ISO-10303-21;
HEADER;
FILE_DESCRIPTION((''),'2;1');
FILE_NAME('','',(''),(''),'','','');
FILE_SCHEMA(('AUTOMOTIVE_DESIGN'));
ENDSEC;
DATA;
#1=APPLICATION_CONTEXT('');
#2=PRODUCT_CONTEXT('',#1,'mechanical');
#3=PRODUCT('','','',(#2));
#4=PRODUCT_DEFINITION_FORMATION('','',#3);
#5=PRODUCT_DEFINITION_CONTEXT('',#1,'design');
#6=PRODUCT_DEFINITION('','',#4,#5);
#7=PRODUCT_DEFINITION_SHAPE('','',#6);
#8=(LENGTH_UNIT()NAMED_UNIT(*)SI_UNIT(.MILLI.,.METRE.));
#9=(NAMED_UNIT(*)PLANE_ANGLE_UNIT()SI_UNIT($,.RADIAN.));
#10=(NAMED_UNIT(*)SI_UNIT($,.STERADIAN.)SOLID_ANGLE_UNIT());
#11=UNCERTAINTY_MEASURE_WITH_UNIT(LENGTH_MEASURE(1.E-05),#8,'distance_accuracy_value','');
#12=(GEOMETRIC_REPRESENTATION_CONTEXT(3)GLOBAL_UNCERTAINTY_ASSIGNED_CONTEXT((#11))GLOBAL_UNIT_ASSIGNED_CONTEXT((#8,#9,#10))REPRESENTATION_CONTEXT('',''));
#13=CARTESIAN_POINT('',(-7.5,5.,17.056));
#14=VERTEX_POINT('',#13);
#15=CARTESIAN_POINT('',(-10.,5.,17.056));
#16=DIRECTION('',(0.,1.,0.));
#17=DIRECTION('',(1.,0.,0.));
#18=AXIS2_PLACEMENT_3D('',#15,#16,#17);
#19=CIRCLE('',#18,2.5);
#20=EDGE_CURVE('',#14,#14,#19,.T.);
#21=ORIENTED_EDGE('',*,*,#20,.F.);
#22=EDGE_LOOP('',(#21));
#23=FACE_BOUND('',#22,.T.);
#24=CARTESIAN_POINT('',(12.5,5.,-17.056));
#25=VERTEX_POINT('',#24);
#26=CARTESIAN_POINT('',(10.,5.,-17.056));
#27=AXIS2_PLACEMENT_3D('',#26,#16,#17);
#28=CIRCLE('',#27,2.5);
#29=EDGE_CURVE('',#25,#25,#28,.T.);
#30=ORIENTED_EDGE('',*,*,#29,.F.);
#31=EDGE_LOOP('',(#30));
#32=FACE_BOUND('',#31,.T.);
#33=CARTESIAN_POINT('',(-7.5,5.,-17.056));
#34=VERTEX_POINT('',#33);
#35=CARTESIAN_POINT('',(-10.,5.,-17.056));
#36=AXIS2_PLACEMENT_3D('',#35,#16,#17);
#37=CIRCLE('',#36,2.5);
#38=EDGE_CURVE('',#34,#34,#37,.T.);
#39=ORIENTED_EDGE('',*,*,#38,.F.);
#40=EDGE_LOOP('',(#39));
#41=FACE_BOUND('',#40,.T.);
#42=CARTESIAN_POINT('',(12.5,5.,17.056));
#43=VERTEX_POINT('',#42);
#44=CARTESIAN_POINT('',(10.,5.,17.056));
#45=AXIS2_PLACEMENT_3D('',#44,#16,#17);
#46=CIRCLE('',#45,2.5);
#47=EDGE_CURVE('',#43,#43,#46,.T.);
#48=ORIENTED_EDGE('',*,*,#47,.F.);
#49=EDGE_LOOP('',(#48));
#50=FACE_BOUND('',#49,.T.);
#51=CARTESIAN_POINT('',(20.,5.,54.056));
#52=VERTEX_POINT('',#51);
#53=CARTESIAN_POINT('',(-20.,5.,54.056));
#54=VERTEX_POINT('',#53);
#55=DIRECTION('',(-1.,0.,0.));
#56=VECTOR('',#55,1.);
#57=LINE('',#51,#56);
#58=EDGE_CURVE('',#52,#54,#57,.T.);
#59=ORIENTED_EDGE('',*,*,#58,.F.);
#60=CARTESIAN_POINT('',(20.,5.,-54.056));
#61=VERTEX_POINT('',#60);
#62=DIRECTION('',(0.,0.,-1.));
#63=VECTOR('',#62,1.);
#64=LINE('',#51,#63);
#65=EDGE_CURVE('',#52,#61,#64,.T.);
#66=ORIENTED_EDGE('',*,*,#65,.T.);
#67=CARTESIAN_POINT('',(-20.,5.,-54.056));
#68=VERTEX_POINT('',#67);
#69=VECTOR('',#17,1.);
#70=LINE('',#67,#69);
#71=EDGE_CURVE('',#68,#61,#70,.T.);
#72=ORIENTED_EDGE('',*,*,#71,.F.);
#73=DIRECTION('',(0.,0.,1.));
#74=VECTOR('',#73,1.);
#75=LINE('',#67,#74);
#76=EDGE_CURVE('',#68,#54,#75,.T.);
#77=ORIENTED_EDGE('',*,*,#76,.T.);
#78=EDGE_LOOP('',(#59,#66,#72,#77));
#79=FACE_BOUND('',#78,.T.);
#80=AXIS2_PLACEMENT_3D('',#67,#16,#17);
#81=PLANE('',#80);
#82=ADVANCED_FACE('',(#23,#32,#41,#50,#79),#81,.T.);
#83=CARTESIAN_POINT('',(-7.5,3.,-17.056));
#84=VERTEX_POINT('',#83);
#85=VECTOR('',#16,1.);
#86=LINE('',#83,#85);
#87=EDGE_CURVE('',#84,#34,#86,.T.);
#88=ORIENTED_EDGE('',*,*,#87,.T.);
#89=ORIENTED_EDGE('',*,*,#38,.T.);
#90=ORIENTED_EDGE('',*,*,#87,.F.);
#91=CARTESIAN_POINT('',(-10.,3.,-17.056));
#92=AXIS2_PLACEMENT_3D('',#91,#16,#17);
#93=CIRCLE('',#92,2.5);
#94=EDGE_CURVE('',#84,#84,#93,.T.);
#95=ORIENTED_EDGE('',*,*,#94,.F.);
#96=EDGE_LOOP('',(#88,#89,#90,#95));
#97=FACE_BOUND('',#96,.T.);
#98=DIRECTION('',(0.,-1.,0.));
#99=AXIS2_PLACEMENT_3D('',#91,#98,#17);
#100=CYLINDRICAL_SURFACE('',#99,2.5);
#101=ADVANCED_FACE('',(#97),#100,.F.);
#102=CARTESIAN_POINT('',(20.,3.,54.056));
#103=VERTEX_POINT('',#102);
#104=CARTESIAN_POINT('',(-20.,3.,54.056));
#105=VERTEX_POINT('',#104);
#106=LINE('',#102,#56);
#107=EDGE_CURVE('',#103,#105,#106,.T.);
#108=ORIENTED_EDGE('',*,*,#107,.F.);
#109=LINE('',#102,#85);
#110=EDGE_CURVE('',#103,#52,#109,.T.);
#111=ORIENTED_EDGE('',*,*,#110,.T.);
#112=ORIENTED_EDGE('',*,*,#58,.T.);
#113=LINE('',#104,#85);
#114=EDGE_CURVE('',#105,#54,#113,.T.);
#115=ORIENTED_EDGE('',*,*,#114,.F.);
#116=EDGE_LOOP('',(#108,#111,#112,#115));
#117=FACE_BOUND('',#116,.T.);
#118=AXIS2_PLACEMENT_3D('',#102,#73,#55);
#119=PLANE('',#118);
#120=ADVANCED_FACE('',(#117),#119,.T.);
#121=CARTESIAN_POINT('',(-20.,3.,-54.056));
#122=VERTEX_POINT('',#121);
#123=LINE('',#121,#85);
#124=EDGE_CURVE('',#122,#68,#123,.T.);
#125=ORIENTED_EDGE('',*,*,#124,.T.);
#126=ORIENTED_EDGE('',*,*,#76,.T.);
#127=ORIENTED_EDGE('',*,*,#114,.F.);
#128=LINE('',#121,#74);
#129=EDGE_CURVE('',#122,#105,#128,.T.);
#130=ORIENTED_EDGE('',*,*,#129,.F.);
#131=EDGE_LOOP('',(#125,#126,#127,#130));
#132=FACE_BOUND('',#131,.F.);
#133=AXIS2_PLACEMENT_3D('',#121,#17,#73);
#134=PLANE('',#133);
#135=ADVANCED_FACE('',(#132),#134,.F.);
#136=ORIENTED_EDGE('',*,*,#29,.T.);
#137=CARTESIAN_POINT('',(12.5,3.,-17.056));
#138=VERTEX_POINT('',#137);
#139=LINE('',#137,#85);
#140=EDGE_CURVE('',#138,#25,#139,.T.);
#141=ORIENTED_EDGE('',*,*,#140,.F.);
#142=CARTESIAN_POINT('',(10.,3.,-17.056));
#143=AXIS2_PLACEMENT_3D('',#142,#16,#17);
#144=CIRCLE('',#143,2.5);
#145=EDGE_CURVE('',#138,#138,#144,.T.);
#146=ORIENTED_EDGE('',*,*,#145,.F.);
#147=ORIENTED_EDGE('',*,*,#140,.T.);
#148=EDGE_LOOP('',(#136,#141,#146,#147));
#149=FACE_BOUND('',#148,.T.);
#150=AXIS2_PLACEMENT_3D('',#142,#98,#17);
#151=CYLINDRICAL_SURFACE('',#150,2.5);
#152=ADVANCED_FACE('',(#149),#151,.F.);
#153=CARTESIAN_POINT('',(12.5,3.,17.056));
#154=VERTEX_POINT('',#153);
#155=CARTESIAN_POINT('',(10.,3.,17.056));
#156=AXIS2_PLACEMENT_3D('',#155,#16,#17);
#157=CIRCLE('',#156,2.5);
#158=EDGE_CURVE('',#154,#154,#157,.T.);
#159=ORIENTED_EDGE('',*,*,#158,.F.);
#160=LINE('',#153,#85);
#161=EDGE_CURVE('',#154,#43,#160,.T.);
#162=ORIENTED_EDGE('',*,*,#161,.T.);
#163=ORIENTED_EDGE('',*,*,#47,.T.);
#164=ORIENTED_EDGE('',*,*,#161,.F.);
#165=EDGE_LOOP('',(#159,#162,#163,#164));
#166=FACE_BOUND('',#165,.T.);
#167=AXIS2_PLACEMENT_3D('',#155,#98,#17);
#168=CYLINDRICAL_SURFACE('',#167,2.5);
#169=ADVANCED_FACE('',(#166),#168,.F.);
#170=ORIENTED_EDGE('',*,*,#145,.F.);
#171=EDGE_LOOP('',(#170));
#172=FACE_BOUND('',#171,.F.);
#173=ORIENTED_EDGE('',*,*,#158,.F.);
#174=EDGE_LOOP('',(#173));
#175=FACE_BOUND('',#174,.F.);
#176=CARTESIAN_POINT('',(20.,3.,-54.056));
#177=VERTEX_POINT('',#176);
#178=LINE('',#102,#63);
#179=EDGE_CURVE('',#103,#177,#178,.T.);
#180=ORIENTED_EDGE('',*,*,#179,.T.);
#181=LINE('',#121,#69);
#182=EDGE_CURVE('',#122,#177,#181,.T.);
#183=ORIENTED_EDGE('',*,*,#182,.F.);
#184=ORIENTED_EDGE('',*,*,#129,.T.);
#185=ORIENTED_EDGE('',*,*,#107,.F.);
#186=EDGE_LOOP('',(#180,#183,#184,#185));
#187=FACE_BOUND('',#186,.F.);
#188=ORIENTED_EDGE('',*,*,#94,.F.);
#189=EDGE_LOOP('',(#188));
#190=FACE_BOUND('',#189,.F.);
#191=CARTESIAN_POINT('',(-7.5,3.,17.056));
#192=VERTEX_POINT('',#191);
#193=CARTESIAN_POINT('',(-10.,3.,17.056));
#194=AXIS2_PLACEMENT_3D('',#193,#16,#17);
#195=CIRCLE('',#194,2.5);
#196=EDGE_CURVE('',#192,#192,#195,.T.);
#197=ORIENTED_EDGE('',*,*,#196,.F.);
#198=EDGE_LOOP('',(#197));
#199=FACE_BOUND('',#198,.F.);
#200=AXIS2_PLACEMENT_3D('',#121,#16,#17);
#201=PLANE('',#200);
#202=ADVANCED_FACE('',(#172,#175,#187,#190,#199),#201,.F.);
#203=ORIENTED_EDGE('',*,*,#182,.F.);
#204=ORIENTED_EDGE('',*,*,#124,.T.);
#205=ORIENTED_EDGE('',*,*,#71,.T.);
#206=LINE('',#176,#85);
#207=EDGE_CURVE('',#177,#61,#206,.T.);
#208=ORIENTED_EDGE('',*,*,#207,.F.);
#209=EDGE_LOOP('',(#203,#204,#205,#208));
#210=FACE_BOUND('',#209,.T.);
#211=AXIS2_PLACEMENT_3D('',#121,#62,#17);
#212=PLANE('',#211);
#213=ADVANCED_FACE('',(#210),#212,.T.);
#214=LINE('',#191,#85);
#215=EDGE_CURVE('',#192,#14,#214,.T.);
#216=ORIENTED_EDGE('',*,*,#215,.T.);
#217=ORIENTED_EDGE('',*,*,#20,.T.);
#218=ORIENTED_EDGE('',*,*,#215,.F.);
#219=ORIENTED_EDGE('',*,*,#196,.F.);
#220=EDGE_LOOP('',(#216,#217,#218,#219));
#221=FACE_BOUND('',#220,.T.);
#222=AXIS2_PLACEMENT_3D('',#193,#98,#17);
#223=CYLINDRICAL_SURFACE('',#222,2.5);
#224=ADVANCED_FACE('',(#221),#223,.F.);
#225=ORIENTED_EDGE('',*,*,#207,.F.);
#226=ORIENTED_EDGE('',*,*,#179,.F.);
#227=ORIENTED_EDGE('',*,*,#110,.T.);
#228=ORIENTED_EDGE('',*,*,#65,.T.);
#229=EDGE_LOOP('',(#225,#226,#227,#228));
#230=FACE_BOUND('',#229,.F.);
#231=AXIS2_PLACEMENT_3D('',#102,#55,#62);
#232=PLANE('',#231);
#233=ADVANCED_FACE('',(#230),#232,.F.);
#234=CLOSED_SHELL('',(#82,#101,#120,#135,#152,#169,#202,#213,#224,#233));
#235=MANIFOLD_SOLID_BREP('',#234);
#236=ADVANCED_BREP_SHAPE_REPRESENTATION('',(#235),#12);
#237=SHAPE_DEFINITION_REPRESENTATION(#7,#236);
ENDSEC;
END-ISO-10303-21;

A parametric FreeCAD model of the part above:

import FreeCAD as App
import Part
import Sketcher
Q = App.Units.Quantity

doc = App.newDocument("Part")
body = doc.addObject("PartDesign::Body", "Body")

# Sketch on XZ plane
sketch1 = body.newObject("Sketcher::SketchObject", "Sketch")
sketch1.AttachmentSupport = (doc.getObject("XZ_Plane"), [""])
sketch1.MapMode = "FlatFace"
sketch1.AttachmentOffset = App.Placement(App.Vector(0, 0, -3), App.Rotation())
sketch1.addGeometry([
    Part.LineSegment(App.Vector(20, -54.056, 0), App.Vector(-20, -54.056, 0)),  # 0
    Part.LineSegment(App.Vector(-20, -54.056, 0), App.Vector(-20, 54.056, 0)),  # 1
    Part.LineSegment(App.Vector(-20, 54.056, 0), App.Vector(20, 54.056, 0)),  # 2
    Part.LineSegment(App.Vector(20, 54.056, 0), App.Vector(20, -54.056, 0)),  # 3
    Part.Circle(App.Vector(-10, 17.056, 0), App.Vector(0, 0, 1), 2.5),  # 4
    Part.Circle(App.Vector(10, 17.056, 0), App.Vector(0, 0, 1), 2.5),  # 5
    Part.Circle(App.Vector(-10, -17.056, 0), App.Vector(0, 0, 1), 2.5),  # 6
    Part.Circle(App.Vector(10, -17.056, 0), App.Vector(0, 0, 1), 2.5),  # 7
], False)
sketch1.addConstraint([
    Sketcher.Constraint("Coincident", 0, 2, 1, 1),
    Sketcher.Constraint("Coincident", 1, 2, 2, 1),
    Sketcher.Constraint("Coincident", 2, 2, 3, 1),
    Sketcher.Constraint("Coincident", 3, 2, 0, 1),
    Sketcher.Constraint("Horizontal", 0),
    Sketcher.Constraint("Vertical", 1),
    Sketcher.Constraint("Horizontal", 2),
    Sketcher.Constraint("Vertical", 3),
    Sketcher.Constraint("Equal", 4, 5),
    Sketcher.Constraint("Equal", 5, 6),
    Sketcher.Constraint("Equal", 6, 7),
    Sketcher.Constraint("Symmetric", 5, 3, 6, 3, -1, 1),
    Sketcher.Constraint("Symmetric", 4, 3, 7, 3, -1, 1),
    Sketcher.Constraint("Symmetric", 0, 2, 2, 2, -1, 1),
    Sketcher.Constraint("Symmetric", 4, 3, 5, 3, -2),
    Sketcher.Constraint("Diameter", 4, Q("5 mm")),
    Sketcher.Constraint("DistanceX", 0, 2, 0, 1, Q("40 mm")),
    Sketcher.Constraint("DistanceX", 4, 3, -1, 1, Q("10 mm")),
    Sketcher.Constraint("DistanceY", 0, 2, 6, 3, Q("37 mm")),
    Sketcher.Constraint("DistanceY", 1, 1, 1, 2, Q("108.112 mm")),
])
pad1 = body.newObject("PartDesign::Pad", "Pad")
pad1.Profile = sketch1
pad1.Length = 2
pad1.Reversed = True

doc.recompute()
